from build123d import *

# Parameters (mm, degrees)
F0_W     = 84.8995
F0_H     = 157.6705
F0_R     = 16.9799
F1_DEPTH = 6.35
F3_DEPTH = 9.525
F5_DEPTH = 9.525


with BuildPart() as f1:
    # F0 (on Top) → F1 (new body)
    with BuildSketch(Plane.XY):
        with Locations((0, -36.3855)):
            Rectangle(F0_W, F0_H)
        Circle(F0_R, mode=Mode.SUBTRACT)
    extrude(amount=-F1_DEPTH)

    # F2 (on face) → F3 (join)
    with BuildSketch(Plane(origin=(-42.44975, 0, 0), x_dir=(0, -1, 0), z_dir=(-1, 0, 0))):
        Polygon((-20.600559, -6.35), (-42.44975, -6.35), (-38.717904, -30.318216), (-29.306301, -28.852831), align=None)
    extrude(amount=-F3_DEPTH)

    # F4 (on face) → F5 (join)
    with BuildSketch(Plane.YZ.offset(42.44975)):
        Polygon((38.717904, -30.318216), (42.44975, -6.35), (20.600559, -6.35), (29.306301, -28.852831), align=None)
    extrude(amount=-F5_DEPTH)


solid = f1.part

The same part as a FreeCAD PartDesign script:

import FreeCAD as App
import Part
import Sketcher

V = App.Vector
Q = App.Units.Quantity

doc = App.newDocument("Part")
body = doc.addObject("PartDesign::Body", "Body")

# Sketch on XY plane
sketch1 = doc.addObject("Sketcher::SketchObject", "Sketch")
body.addObject(sketch1)
sketch1.AttachmentSupport = (doc.XY_Plane, [""])
sketch1.MapMode = "FlatFace"
sketch1.addGeometry(Part.LineSegment(V(-42.44975, 42.44975, 0), V(-42.44975, -115.22075, 0)), False)
sketch1.addGeometry(Part.LineSegment(V(-42.44975, -115.22075, 0), V(42.44975, -115.22075, 0)), False)
sketch1.addGeometry(Part.LineSegment(V(42.44975, -115.22075, 0), V(42.44975, 42.44975, 0)), False)
sketch1.addGeometry(Part.LineSegment(V(42.44975, 42.44975, 0), V(-42.44975, 42.44975, 0)), False)
sketch1.addGeometry(Part.Circle(V(0, 0, 0), V(0, 0, 1), 16.9799), False)
sketch1.addConstraint(Sketcher.Constraint("Coincident", 0, 2, 1, 1))
sketch1.addConstraint(Sketcher.Constraint("Coincident", 1, 2, 2, 1))
sketch1.addConstraint(Sketcher.Constraint("Coincident", 2, 2, 3, 1))
sketch1.addConstraint(Sketcher.Constraint("Coincident", 3, 2, 0, 1))
sketch1.addConstraint(Sketcher.Constraint("Vertical", 0))
sketch1.addConstraint(Sketcher.Constraint("Horizontal", 1))
sketch1.addConstraint(Sketcher.Constraint("Vertical", 2))
sketch1.addConstraint(Sketcher.Constraint("Horizontal", 3))
sketch1.addConstraint(Sketcher.Constraint("Coincident", 4, 3, -1, 1))
sketch1.addConstraint(Sketcher.Constraint("Diameter", 4, Q("1.337 in")))
sketch1.addConstraint(Sketcher.Constraint("DistanceX", 1, 1, 1, 2, Q("3.3425 in")))
sketch1.addConstraint(Sketcher.Constraint("DistanceY", 0, 2, 0, 1, Q("6.2075 in")))
sketch1.addConstraint(Sketcher.Constraint("DistanceX", 0, 2, -1, 1, Q("42.44975 mm")))
sketch1.addConstraint(Sketcher.Constraint("DistanceY", 0, 2, -1, 1, Q("115.22075 mm")))
pad1 = doc.addObject("PartDesign::Pad", "Pad")
body.addObject(pad1)
pad1.Profile = sketch1
pad1.Length = Q("0.25 in")
pad1.Reversed = True

# Sketch on YZ plane
sketch2 = doc.addObject("Sketcher::SketchObject", "Sketch001")
body.addObject(sketch2)
sketch2.AttachmentSupport = (doc.YZ_Plane, [""])
sketch2.MapMode = "FlatFace"
sketch2.AttachmentOffset = App.Placement(V(0, 0, -42.44975), App.Rotation())
sketch2.addGeometry(Part.LineSegment(V(20.600559, -6.35, 0), V(42.44975, -6.35, 0)), False)
sketch2.addGeometry(Part.LineSegment(V(42.44975, -6.35, 0), V(38.717904, -30.318216, 0)), False)
sketch2.addGeometry(Part.LineSegment(V(38.717904, -30.318216, 0), V(29.306301, -28.852831, 0)), False)
sketch2.addGeometry(Part.LineSegment(V(29.306301, -28.852831, 0), V(20.600559, -6.35, 0)), False)
sketch2.addConstraint(Sketcher.Constraint("Coincident", 0, 2, 1, 1))
sketch2.addConstraint(Sketcher.Constraint("Coincident", 1, 2, 2, 1))
sketch2.addConstraint(Sketcher.Constraint("Coincident", 2, 2, 3, 1))
sketch2.addConstraint(Sketcher.Constraint("Coincident", 3, 2, 0, 1))
sketch2.addConstraint(Sketcher.Constraint("Horizontal", 0))
sketch2.addConstraint(Sketcher.Constraint("Perpendicular", 1, 2))
sketch2.addConstraint(Sketcher.Constraint("DistanceY", 0, 2, -1, 1, Q("0.25 in")))
sketch2.addConstraint(Sketcher.Constraint("Distance", 1, Q("0.955 in")))
sketch2.addConstraint(Sketcher.Constraint("Distance", 2, Q("0.375 in")))
sketch2.addConstraint(Sketcher.Constraint("DistanceX", 0, 1, 0, 2, Q("21.849191 mm")))
sketch2.addConstraint(Sketcher.Constraint("DistanceX", -1, 1, 2, 2, Q("29.306301 mm")))
sketch2.addConstraint(Sketcher.Constraint("DistanceX", -1, 1, 0, 2, Q("42.44975 mm")))
pad2 = doc.addObject("PartDesign::Pad", "Pad001")
body.addObject(pad2)
pad2.Profile = sketch2
pad2.Length = Q("0.375 in")

# Sketch on YZ plane
sketch3 = doc.addObject("Sketcher::SketchObject", "Sketch002")
body.addObject(sketch3)
sketch3.AttachmentSupport = (doc.YZ_Plane, [""])
sketch3.MapMode = "FlatFace"
sketch3.AttachmentOffset = App.Placement(V(0, 0, 42.44975), App.Rotation())
sketch3.addGeometry(Part.LineSegment(V(38.717904, -30.318216, 0), V(42.44975, -6.35, 0)), False)
sketch3.addGeometry(Part.LineSegment(V(42.44975, -6.35, 0), V(20.600559, -6.35, 0)), False)
sketch3.addGeometry(Part.LineSegment(V(20.600559, -6.35, 0), V(29.306301, -28.852831, 0)), False)
sketch3.addGeometry(Part.LineSegment(V(29.306301, -28.852831, 0), V(38.717904, -30.318216, 0)), False)
sketch3.addConstraint(Sketcher.Constraint("Coincident", 0, 2, 1, 1))
sketch3.addConstraint(Sketcher.Constraint("Coincident", 1, 2, 2, 1))
sketch3.addConstraint(Sketcher.Constraint("Coincident", 2, 2, 3, 1))
sketch3.addConstraint(Sketcher.Constraint("Coincident", 3, 2, 0, 1))
sketch3.addConstraint(Sketcher.Constraint("Horizontal", 1))
sketch3.addConstraint(Sketcher.Constraint("Perpendicular", 0, 3))
sketch3.addConstraint(Sketcher.Constraint("DistanceY", 0, 2, -1, 1, Q("0.25 in")))
sketch3.addConstraint(Sketcher.Constraint("Distance", 0, Q("0.955 in")))
sketch3.addConstraint(Sketcher.Constraint("Distance", 3, Q("0.375 in")))
sketch3.addConstraint(Sketcher.Constraint("DistanceX", 1, 2, 1, 1, Q("21.849191 mm")))
sketch3.addConstraint(Sketcher.Constraint("DistanceX", -1, 1, 2, 2, Q("29.306301 mm")))
sketch3.addConstraint(Sketcher.Constraint("DistanceX", -1, 1, 0, 2, Q("42.44975 mm")))
pad3 = doc.addObject("PartDesign::Pad", "Pad002")
body.addObject(pad3)
pad3.Profile = sketch3
pad3.Length = Q("0.375 in")
pad3.Reversed = True

doc.recompute()
